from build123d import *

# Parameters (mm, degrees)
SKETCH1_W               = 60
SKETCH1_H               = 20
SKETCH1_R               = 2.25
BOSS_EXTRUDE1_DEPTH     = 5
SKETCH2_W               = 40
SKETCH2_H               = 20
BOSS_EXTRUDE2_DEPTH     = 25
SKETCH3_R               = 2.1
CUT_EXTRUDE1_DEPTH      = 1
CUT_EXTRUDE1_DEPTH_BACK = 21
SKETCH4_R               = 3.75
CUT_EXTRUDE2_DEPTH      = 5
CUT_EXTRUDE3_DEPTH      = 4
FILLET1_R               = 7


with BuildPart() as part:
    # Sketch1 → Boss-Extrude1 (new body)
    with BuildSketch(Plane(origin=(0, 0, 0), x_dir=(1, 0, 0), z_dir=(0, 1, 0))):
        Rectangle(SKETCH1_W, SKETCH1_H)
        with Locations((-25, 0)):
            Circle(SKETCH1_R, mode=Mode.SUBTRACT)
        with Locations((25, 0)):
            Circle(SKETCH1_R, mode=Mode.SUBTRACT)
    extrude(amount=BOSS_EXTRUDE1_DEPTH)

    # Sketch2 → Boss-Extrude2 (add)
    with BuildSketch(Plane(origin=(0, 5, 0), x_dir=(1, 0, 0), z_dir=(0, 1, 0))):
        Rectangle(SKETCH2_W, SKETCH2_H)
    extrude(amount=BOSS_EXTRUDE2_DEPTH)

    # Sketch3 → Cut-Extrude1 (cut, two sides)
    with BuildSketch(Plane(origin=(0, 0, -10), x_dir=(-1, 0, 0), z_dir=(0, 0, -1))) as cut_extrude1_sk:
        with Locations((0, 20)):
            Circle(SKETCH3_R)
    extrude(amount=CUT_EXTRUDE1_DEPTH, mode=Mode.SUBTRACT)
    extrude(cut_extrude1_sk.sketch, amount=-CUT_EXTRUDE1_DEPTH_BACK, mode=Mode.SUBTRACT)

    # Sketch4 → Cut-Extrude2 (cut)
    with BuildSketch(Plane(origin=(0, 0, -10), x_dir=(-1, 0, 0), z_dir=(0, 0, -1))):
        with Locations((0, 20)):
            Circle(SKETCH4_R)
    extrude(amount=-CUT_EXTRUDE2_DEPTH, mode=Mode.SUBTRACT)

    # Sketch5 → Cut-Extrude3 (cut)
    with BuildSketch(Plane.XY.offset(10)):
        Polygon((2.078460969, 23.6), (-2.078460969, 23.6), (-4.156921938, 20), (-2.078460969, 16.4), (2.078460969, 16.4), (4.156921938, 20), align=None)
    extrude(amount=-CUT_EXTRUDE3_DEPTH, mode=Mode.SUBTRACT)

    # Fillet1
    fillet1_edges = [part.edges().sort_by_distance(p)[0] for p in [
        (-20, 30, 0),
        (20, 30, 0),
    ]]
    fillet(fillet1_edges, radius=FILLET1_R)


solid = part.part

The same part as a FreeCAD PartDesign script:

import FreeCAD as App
import Part
import Sketcher
from FreeCAD import Vector
Q = App.Units.Quantity


def edges_at(feature, points):
    """Names of the edges that pass closest to the given points."""
    edges = feature.Shape.Edges
    near = lambda p: min(range(len(edges)), key=lambda i: edges[i].distToShape(Part.Vertex(*p))[0])
    return sorted({f"Edge{near(p) + 1}" for p in points})

doc = App.newDocument("Part")
params = doc.addObject("Spreadsheet::Sheet", "Params")
for row, (alias, value) in enumerate([
    ("sketch1_diameter", "4.5 mm"),
    ("sketch1_width", "60 mm"),
    ("sketch1_height", "20 mm"),
    ("pad1_length", "5 mm"),
    ("sketch2_width", "40 mm"),
    ("sketch2_height", "20 mm"),
    ("pad2_length", "25 mm"),
    ("sketch3_diameter", "4.2 mm"),
    ("sketch4_diameter", "7.5 mm"),
    ("pocket2_length", "5 mm"),
    ("pocket3_length", "4 mm"),
    ("fillet_radius", "7 mm"),
], start=1):
    params.set(f"A{row}", alias)
    params.set(f"B{row}", "=" + value)
    params.setAlias(f"B{row}", alias)

body = doc.addObject("PartDesign::Body", "Body")

# Sketch on XZ plane
sketch1 = body.newObject("Sketcher::SketchObject", "Sketch")
sketch1.AttachmentSupport = (doc.getObject("XZ_Plane"), [""])
sketch1.MapMode = "FlatFace"
sketch1.addGeometry([
    Part.LineSegment(Vector(-30, -10, 0), Vector(-30, 10, 0)),  # 0
    Part.LineSegment(Vector(-30, 10, 0), Vector(30, 10, 0)),  # 1
    Part.LineSegment(Vector(30, 10, 0), Vector(30, -10, 0)),  # 2
    Part.LineSegment(Vector(30, -10, 0), Vector(-30, -10, 0)),  # 3
    Part.Circle(Vector(-25, 0, 0), Vector(0, 0, 1), 2.2),  # 4
    Part.Circle(Vector(25, 0, 0), Vector(0, 0, 1), 2.2),  # 5
], False)
sketch1.addConstraint([
    Sketcher.Constraint("Coincident", 0, 2, 1, 1),
    Sketcher.Constraint("Coincident", 1, 2, 2, 1),
    Sketcher.Constraint("Coincident", 2, 2, 3, 1),
    Sketcher.Constraint("Coincident", 3, 2, 0, 1),
    Sketcher.Constraint("Vertical", 0),
    Sketcher.Constraint("Horizontal", 1),
    Sketcher.Constraint("Vertical", 2),
    Sketcher.Constraint("Horizontal", 3),
    Sketcher.Constraint("Equal", 4, 5),
    Sketcher.Constraint("Symmetric", 4, 3, 5, 3, -1, 1),
    Sketcher.Constraint("Symmetric", 0, 2, 2, 2, -1, 1),
    Sketcher.Constraint("PointOnObject", 4, 3, -1),
    Sketcher.Constraint("Diameter", 4, 4.5),
    Sketcher.Constraint("DistanceX", 1, 1, 1, 2, 60.0),
    Sketcher.Constraint("DistanceY", 0, 1, 0, 2, 20.0),
    Sketcher.Constraint("DistanceX", 4, 3, -1, 1, 25.0),
])
sketch1.setExpression("Constraints[12]", "Params.sketch1_diameter")
sketch1.setExpression("Constraints[13]", "Params.sketch1_width")
sketch1.setExpression("Constraints[14]", "Params.sketch1_height")
pad1 = body.newObject("PartDesign::Pad", "Pad")
pad1.Profile = sketch1
pad1.setExpression("Length", "Params.pad1_length")
pad1.Reversed = True

# Sketch on XZ plane
sketch2 = body.newObject("Sketcher::SketchObject", "Sketch001")
sketch2.AttachmentSupport = (doc.getObject("XZ_Plane"), [""])
sketch2.MapMode = "FlatFace"
sketch2.AttachmentOffset = App.Placement(Vector(0, 0, -5), App.Rotation())
sketch2.addGeometry([
    Part.LineSegment(Vector(-20, -10, 0), Vector(-20, 10, 0)),
    Part.LineSegment(Vector(-20, 10, 0), Vector(20, 10, 0)),
    Part.LineSegment(Vector(20, 10, 0), Vector(20, -10, 0)),
    Part.LineSegment(Vector(20, -10, 0), Vector(-20, -10, 0)),
], False)
sketch2.addConstraint([
    Sketcher.Constraint("Coincident", 0, 2, 1, 1),
    Sketcher.Constraint("Coincident", 1, 2, 2, 1),
    Sketcher.Constraint("Coincident", 2, 2, 3, 1),
    Sketcher.Constraint("Coincident", 3, 2, 0, 1),
    Sketcher.Constraint("Vertical", 0),
    Sketcher.Constraint("Horizontal", 1),
    Sketcher.Constraint("Vertical", 2),
    Sketcher.Constraint("Horizontal", 3),
    Sketcher.Constraint("Symmetric", 0, 2, 2, 2, -1, 1),
    Sketcher.Constraint("DistanceX", 1, 1, 1, 2, 40.0),
    Sketcher.Constraint("DistanceY", 0, 1, 0, 2, 20.0),
])
sketch2.setExpression("Constraints[9]", "Params.sketch2_width")
sketch2.setExpression("Constraints[10]", "Params.sketch2_height")
pad2 = body.newObject("PartDesign::Pad", "Pad001")
pad2.Profile = sketch2
pad2.setExpression("Length", "Params.pad2_length")
pad2.Reversed = True

# Sketch on XY plane
sketch3 = body.newObject("Sketcher::SketchObject", "Sketch002")
sketch3.AttachmentSupport = (doc.getObject("XY_Plane"), [""])
sketch3.MapMode = "FlatFace"
sketch3.AttachmentOffset = App.Placement(Vector(0, 0, -10), App.Rotation())
sketch3.addGeometry(Part.Circle(Vector(0, 20, 0), Vector(0, 0, 1), 2.1), False)
sketch3.addConstraint([
    Sketcher.Constraint("PointOnObject", 0, 3, -2),
    Sketcher.Constraint("Diameter", 0, 4.2),
    Sketcher.Constraint("DistanceY", -1, 1, 0, 3, 20.0),
])
sketch3.setExpression("Constraints[1]", "Params.sketch3_diameter")
pocket1 = body.newObject("PartDesign::Pocket", "Pocket")
pocket1.Profile = sketch3
pocket1.Type = "ThroughAll"
pocket1.Midplane = True

# Sketch on XY plane
sketch4 = body.newObject("Sketcher::SketchObject", "Sketch003")
sketch4.AttachmentSupport = (doc.getObject("XY_Plane"), [""])
sketch4.MapMode = "FlatFace"
sketch4.AttachmentOffset = App.Placement(Vector(0, 0, -10), App.Rotation())
sketch4.addGeometry(Part.Circle(Vector(0, 20, 0), Vector(0, 0, 1), 3.8), False)
sketch4.addConstraint([
    Sketcher.Constraint("PointOnObject", 0, 3, -2),
    Sketcher.Constraint("Diameter", 0, 7.5),
    Sketcher.Constraint("DistanceY", -1, 1, 0, 3, 20.0),
])
sketch4.setExpression("Constraints[1]", "Params.sketch4_diameter")
pocket2 = body.newObject("PartDesign::Pocket", "Pocket001")
pocket2.Profile = sketch4
pocket2.setExpression("Length", "Params.pocket2_length")
pocket2.Reversed = True

# Sketch on XY plane
sketch5 = body.newObject("Sketcher::SketchObject", "Sketch004")
sketch5.AttachmentSupport = (doc.getObject("XY_Plane"), [""])
sketch5.MapMode = "FlatFace"
sketch5.AttachmentOffset = App.Placement(Vector(0, 0, 10), App.Rotation())
sketch5.addGeometry([
    Part.LineSegment(Vector(2.1, 23.6, 0), Vector(-2.1, 23.6, 0)),  # 0
    Part.LineSegment(Vector(-2.1, 23.6, 0), Vector(-4.2, 20, 0)),  # 1
    Part.LineSegment(Vector(-4.2, 20, 0), Vector(-2.1, 16.4, 0)),  # 2
    Part.LineSegment(Vector(-2.1, 16.4, 0), Vector(2.1, 16.4, 0)),  # 3
    Part.LineSegment(Vector(2.1, 16.4, 0), Vector(4.2, 20, 0)),  # 4
    Part.LineSegment(Vector(4.2, 20, 0), Vector(2.1, 23.6, 0)),  # 5
], False)
sketch5.addConstraint([
    Sketcher.Constraint("Coincident", 0, 2, 1, 1),
    Sketcher.Constraint("Coincident", 1, 2, 2, 1),
    Sketcher.Constraint("Coincident", 2, 2, 3, 1),
    Sketcher.Constraint("Coincident", 3, 2, 4, 1),
    Sketcher.Constraint("Coincident", 4, 2, 5, 1),
    Sketcher.Constraint("Coincident", 5, 2, 0, 1),
    Sketcher.Constraint("Horizontal", 0),
    Sketcher.Constraint("Horizontal", 3),
    Sketcher.Constraint("Symmetric", 1, 2, 4, 2, -2),
    Sketcher.Constraint("Parallel", 1, 4),
    Sketcher.Constraint("Parallel", 2, 5),
    Sketcher.Constraint("Vertical", 0, 2, 2, 2),
    Sketcher.Constraint("Vertical", 3, 2, 5, 2),
    Sketcher.Constraint("Angle", 1, Q("-120 deg")),
    Sketcher.Constraint("DistanceY", -1, 1, 1, 2, 20.0),
    Sketcher.Constraint("DistanceY", -1, 1, 0, 2, 23.6),
    Sketcher.Constraint("DistanceX", 0, 2, 0, 1, 4.156922),
])
pocket3 = body.newObject("PartDesign::Pocket", "Pocket002")
pocket3.Profile = sketch5
pocket3.setExpression("Length", "Params.pocket3_length")
doc.recompute()

fillet = body.newObject("PartDesign::Fillet", "Fillet")
fillet.Base = (pocket3, edges_at(pocket3, [(-20, 30, 0), (20, 30, 0)]))
fillet.setExpression("Radius", "Params.fillet_radius")

doc.recompute()
